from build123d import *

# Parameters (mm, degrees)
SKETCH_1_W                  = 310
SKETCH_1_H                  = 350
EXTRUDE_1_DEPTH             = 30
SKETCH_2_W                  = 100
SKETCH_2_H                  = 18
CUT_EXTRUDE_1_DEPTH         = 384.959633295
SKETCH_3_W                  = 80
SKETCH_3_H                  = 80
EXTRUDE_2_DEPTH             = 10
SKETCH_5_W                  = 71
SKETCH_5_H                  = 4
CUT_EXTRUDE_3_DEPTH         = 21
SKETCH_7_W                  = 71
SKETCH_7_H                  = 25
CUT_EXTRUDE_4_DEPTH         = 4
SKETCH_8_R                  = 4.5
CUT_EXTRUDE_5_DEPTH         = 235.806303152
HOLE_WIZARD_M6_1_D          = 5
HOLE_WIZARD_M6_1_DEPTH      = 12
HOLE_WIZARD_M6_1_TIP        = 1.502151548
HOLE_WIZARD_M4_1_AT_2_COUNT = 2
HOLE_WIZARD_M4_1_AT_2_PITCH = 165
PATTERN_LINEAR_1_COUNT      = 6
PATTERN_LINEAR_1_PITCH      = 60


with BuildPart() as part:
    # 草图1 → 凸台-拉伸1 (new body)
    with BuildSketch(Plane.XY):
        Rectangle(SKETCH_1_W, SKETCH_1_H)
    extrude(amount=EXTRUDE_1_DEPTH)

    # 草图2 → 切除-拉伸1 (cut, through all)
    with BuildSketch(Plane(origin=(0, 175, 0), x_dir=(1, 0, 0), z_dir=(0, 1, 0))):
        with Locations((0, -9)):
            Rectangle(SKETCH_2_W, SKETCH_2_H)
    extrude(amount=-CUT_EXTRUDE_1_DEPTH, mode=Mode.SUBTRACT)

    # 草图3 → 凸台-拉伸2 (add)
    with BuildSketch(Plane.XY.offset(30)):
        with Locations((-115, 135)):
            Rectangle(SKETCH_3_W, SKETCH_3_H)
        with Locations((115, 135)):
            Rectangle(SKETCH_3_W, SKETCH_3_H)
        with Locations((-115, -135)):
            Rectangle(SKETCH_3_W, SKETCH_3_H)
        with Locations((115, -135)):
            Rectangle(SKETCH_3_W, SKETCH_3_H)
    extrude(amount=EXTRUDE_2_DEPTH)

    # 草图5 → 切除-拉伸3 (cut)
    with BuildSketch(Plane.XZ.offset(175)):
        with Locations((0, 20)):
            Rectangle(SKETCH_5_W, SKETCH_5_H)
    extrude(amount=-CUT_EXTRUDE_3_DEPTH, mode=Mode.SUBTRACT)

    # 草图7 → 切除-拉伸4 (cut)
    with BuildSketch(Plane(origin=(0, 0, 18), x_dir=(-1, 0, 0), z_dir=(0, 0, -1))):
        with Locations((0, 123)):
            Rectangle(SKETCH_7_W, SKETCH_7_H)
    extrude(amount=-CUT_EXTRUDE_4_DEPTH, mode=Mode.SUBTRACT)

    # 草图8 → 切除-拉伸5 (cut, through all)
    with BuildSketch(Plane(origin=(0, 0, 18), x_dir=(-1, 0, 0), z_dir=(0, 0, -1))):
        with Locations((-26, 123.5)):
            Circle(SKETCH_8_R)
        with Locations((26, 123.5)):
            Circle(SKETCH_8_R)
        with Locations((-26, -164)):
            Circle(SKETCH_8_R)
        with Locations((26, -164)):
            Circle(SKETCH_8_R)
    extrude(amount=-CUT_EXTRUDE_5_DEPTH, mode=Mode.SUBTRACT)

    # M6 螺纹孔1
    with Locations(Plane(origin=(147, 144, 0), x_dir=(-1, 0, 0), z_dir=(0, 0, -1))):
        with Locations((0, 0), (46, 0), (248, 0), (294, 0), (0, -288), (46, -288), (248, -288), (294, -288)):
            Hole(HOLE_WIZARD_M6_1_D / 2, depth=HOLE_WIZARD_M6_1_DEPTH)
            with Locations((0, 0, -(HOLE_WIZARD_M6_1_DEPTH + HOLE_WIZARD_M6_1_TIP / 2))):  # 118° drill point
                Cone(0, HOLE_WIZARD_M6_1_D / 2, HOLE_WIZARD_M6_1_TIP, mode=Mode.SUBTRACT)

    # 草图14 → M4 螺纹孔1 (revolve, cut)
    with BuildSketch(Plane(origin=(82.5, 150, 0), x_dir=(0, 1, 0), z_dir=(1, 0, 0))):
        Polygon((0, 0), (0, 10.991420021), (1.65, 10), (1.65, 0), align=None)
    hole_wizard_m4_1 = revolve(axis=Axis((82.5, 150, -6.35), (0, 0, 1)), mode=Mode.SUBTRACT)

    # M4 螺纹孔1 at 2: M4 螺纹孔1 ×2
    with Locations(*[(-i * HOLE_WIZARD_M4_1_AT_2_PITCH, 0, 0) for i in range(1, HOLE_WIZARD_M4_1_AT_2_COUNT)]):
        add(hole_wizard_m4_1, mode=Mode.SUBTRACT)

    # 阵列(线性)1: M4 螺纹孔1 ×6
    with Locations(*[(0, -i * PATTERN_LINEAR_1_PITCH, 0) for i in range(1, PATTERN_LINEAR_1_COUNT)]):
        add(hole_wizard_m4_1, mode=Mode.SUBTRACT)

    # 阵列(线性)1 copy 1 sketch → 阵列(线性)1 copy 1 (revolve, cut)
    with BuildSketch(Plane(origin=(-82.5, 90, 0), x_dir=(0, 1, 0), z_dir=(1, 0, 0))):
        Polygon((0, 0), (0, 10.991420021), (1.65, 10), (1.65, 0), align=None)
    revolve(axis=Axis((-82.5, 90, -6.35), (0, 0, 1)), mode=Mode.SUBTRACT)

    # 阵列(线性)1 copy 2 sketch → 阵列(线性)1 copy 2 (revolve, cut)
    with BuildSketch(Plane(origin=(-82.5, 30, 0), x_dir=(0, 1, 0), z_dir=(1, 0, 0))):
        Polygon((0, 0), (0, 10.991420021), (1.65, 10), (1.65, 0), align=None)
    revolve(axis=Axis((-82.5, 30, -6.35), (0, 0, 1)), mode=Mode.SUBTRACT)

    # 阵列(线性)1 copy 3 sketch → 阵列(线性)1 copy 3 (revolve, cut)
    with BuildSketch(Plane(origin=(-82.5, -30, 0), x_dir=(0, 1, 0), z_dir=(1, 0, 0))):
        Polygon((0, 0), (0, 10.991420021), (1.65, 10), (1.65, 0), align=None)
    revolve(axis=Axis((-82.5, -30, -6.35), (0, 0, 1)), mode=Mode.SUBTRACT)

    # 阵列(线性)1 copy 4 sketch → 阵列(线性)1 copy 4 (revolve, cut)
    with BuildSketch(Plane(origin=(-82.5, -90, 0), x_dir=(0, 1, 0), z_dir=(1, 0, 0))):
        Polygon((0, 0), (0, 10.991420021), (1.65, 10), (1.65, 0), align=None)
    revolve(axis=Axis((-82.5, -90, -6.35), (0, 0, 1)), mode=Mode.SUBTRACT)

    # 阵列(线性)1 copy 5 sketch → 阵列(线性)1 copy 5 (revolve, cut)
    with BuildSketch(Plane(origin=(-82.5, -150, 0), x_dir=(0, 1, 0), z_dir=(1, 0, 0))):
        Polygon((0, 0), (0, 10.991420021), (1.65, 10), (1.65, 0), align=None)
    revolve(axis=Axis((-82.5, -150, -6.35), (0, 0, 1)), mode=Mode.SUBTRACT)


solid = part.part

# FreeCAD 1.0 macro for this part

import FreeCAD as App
import Part
import Sketcher
from FreeCAD import Vector
Q = App.Units.Quantity


def add_polygon(sketch, points):
    """Adds a closed chain of lines whose ends are joined by coincident constraints."""
    first, n = sketch.GeometryCount, len(points)
    for a, b in zip(points, points[1:] + points[:1]):
        sketch.addGeometry(Part.LineSegment(App.Vector(*a, 0), App.Vector(*b, 0)), False)
    for i in range(n):
        sketch.addConstraint(Sketcher.Constraint("Coincident", first + i, 2, first + (i + 1) % n, 1))

doc = App.newDocument("Part")
body = doc.addObject("PartDesign::Body", "Body")

# Sketch on XY plane
sketch1 = body.newObject("Sketcher::SketchObject", "Sketch")
sketch1.AttachmentSupport = (doc.getObject("XY_Plane"), [""])
sketch1.MapMode = "FlatFace"
add_polygon(sketch1, [(-155, 175), (-155, -175), (155, -175), (155, 175)])  # lines 0-3
sketch1.addConstraint(Sketcher.Constraint("Vertical", 0))
sketch1.addConstraint(Sketcher.Constraint("Horizontal", 1))
sketch1.addConstraint(Sketcher.Constraint("Vertical", 2))
sketch1.addConstraint(Sketcher.Constraint("Horizontal", 3))
sketch1.addConstraint(Sketcher.Constraint("Symmetric", 0, 2, 2, 2, -1, 1))
sketch1.addConstraint(Sketcher.Constraint("DistanceX", 1, 1, 1, 2, Q("310 mm")))
sketch1.addConstraint(Sketcher.Constraint("DistanceY", 0, 2, 0, 1, Q("350 mm")))
pad1 = body.newObject("PartDesign::Pad", "Pad")
pad1.Profile = sketch1
pad1.Length = 30

# Sketch on XZ plane
sketch2 = body.newObject("Sketcher::SketchObject", "Sketch001")
sketch2.AttachmentSupport = (doc.getObject("XZ_Plane"), [""])
sketch2.MapMode = "FlatFace"
sketch2.AttachmentOffset = App.Placement(Vector(0, 0, -175), App.Rotation())
add_polygon(sketch2, [(-50, 0), (-50, 18), (50, 18), (50, 0)])  # lines 0-3
sketch2.addConstraint(Sketcher.Constraint("Vertical", 0))
sketch2.addConstraint(Sketcher.Constraint("Horizontal", 1))
sketch2.addConstraint(Sketcher.Constraint("Vertical", 2))
sketch2.addConstraint(Sketcher.Constraint("Horizontal", 3))
sketch2.addConstraint(Sketcher.Constraint("Symmetric", 2, 2, 3, 2, -1, 1))
sketch2.addConstraint(Sketcher.Constraint("DistanceX", 1, 1, 1, 2, Q("100 mm")))
sketch2.addConstraint(Sketcher.Constraint("DistanceY", 0, 1, 0, 2, Q("18 mm")))
pocket1 = body.newObject("PartDesign::Pocket", "Pocket")
pocket1.Profile = sketch2
pocket1.Type = "ThroughAll"
pocket1.Reversed = True

# Sketch on XY plane
sketch3 = body.newObject("Sketcher::SketchObject", "Sketch002")
sketch3.AttachmentSupport = (doc.getObject("XY_Plane"), [""])
sketch3.MapMode = "FlatFace"
sketch3.AttachmentOffset = App.Placement(Vector(0, 0, 30), App.Rotation())
add_polygon(sketch3, [(-155, 175), (-155, 95), (-75, 95), (-75, 175)])  # lines 0-3
add_polygon(sketch3, [(75, 175), (75, 95), (155, 95), (155, 175)])  # lines 4-7
add_polygon(sketch3, [(-155, -95), (-155, -175), (-75, -175), (-75, -95)])  # lines 8-11
add_polygon(sketch3, [(75, -95), (75, -175), (155, -175), (155, -95)])  # lines 12-15
sketch3.addConstraint(Sketcher.Constraint("Vertical", 0))
sketch3.addConstraint(Sketcher.Constraint("Horizontal", 1))
sketch3.addConstraint(Sketcher.Constraint("Vertical", 2))
sketch3.addConstraint(Sketcher.Constraint("Horizontal", 3))
sketch3.addConstraint(Sketcher.Constraint("Vertical", 4))
sketch3.addConstraint(Sketcher.Constraint("Horizontal", 5))
sketch3.addConstraint(Sketcher.Constraint("Vertical", 6))
sketch3.addConstraint(Sketcher.Constraint("Horizontal", 7))
sketch3.addConstraint(Sketcher.Constraint("Vertical", 8))
sketch3.addConstraint(Sketcher.Constraint("Horizontal", 9))
sketch3.addConstraint(Sketcher.Constraint("Vertical", 10))
sketch3.addConstraint(Sketcher.Constraint("Horizontal", 11))
sketch3.addConstraint(Sketcher.Constraint("Vertical", 12))
sketch3.addConstraint(Sketcher.Constraint("Horizontal", 13))
sketch3.addConstraint(Sketcher.Constraint("Vertical", 14))
sketch3.addConstraint(Sketcher.Constraint("Horizontal", 15))
sketch3.addConstraint(Sketcher.Constraint("Symmetric", 6, 2, 8, 2, -1, 1))
sketch3.addConstraint(Sketcher.Constraint("Symmetric", 4, 2, 10, 2, -1, 1))
sketch3.addConstraint(Sketcher.Constraint("Symmetric", 2, 2, 12, 2, -1, 1))
sketch3.addConstraint(Sketcher.Constraint("Symmetric", 0, 2, 14, 2, -1, 1))
sketch3.addConstraint(Sketcher.Constraint("Symmetric", 1, 2, 4, 2, -2))
sketch3.addConstraint(Sketcher.Constraint("Symmetric", 3, 2, 6, 2, -2))
sketch3.addConstraint(Sketcher.Constraint("Equal", 15, 0))
sketch3.addConstraint(Sketcher.Constraint("DistanceX", 1, 1, 1, 2, Q("80 mm")))
sketch3.addConstraint(Sketcher.Constraint("DistanceX", 0, 2, -1, 1, Q("155 mm")))
sketch3.addConstraint(Sketcher.Constraint("DistanceY", -1, 1, 0, 2, Q("95 mm")))
pad2 = body.newObject("PartDesign::Pad", "Pad001")
pad2.Profile = sketch3
pad2.Length = 10

# Sketch on XZ plane
sketch4 = body.newObject("Sketcher::SketchObject", "Sketch003")
sketch4.AttachmentSupport = (doc.getObject("XZ_Plane"), [""])
sketch4.MapMode = "FlatFace"
sketch4.AttachmentOffset = App.Placement(Vector(0, 0, 175), App.Rotation())
add_polygon(sketch4, [(-35.5, 22), (-35.5, 18), (35.5, 18), (35.5, 22)])  # lines 0-3
sketch4.addConstraint(Sketcher.Constraint("Vertical", 0))
sketch4.addConstraint(Sketcher.Constraint("Horizontal", 1))
sketch4.addConstraint(Sketcher.Constraint("Vertical", 2))
sketch4.addConstraint(Sketcher.Constraint("Horizontal", 3))
sketch4.addConstraint(Sketcher.Constraint("DistanceX", 1, 1, 1, 2, Q("71 mm")))
sketch4.addConstraint(Sketcher.Constraint("DistanceY", 0, 2, 0, 1, Q("4 mm")))
sketch4.addConstraint(Sketcher.Constraint("DistanceY", -1, 1, 0, 2, Q("18 mm")))
sketch4.addConstraint(Sketcher.Constraint("DistanceX", 0, 2, -1, 1, Q("35.5 mm")))
pocket2 = body.newObject("PartDesign::Pocket", "Pocket001")
pocket2.Profile = sketch4
pocket2.Length = 21

# Sketch on XY plane
sketch5 = body.newObject("Sketcher::SketchObject", "Sketch004")
sketch5.AttachmentSupport = (doc.getObject("XY_Plane"), [""])
sketch5.MapMode = "FlatFace"
sketch5.AttachmentOffset = App.Placement(Vector(0, 0, 18), App.Rotation())
add_polygon(sketch5, [(36, 136), (36, 110), (-36, 110), (-36, 136)])  # lines 0-3
sketch5.addConstraint(Sketcher.Constraint("Vertical", 0))
sketch5.addConstraint(Sketcher.Constraint("Horizontal", 1))
sketch5.addConstraint(Sketcher.Constraint("Vertical", 2))
sketch5.addConstraint(Sketcher.Constraint("Horizontal", 3))
sketch5.addConstraint(Sketcher.Constraint("DistanceX", 1, 2, 1, 1, Q("71 mm")))
sketch5.addConstraint(Sketcher.Constraint("DistanceY", 0, 2, 0, 1, Q("25 mm")))
sketch5.addConstraint(Sketcher.Constraint("DistanceX", -1, 1, 0, 2, Q("35.5 mm")))
sketch5.addConstraint(Sketcher.Constraint("DistanceY", -1, 1, 0, 2, Q("110.5 mm")))
pocket3 = body.newObject("PartDesign::Pocket", "Pocket002")
pocket3.Profile = sketch5
pocket3.Length = 4
pocket3.Reversed = True

# Sketch on XY plane
sketch6 = body.newObject("Sketcher::SketchObject", "Sketch005")
sketch6.AttachmentSupport = (doc.getObject("XY_Plane"), [""])
sketch6.MapMode = "FlatFace"
sketch6.AttachmentOffset = App.Placement(Vector(0, 0, 18), App.Rotation())
sketch6.addGeometry(Part.Circle(Vector(26, 123.5, 0), Vector(0, 0, 1), 4.5), False)
sketch6.addGeometry(Part.Circle(Vector(-26, 123.5, 0), Vector(0, 0, 1), 4.5), False)
sketch6.addGeometry(Part.Circle(Vector(26, -164, 0), Vector(0, 0, 1), 4.5), False)
sketch6.addGeometry(Part.Circle(Vector(-26, -164, 0), Vector(0, 0, 1), 4.5), False)
sketch6.addConstraint(Sketcher.Constraint("Equal", 0, 1))
sketch6.addConstraint(Sketcher.Constraint("Equal", 1, 2))
sketch6.addConstraint(Sketcher.Constraint("Equal", 2, 3))
sketch6.addConstraint(Sketcher.Constraint("Symmetric", 0, 3, 1, 3, -2))
sketch6.addConstraint(Sketcher.Constraint("Symmetric", 2, 3, 3, 3, -2))
sketch6.addConstraint(Sketcher.Constraint("Vertical", 0, 3, 2, 3))
sketch6.addConstraint(Sketcher.Constraint("Diameter", 0, Q("9 mm")))
sketch6.addConstraint(Sketcher.Constraint("DistanceX", -1, 1, 0, 3, Q("26 mm")))
sketch6.addConstraint(Sketcher.Constraint("DistanceY", 2, 3, -1, 1, Q("164 mm")))
sketch6.addConstraint(Sketcher.Constraint("DistanceY", -1, 1, 0, 3, Q("123.5 mm")))
pocket4 = body.newObject("PartDesign::Pocket", "Pocket003")
pocket4.Profile = sketch6
pocket4.Type = "ThroughAll"
pocket4.Reversed = True

# Sketch on XY plane
sketch7 = body.newObject("Sketcher::SketchObject", "Sketch006")
sketch7.AttachmentSupport = (doc.getObject("XY_Plane"), [""])
sketch7.MapMode = "FlatFace"
sketch7.addGeometry(Part.Circle(Vector(147, 144, 0), Vector(0, 0, 1), 2.5), False)
sketch7.addGeometry(Part.Circle(Vector(101, 144, 0), Vector(0, 0, 1), 2.5), False)
sketch7.addGeometry(Part.Circle(Vector(-101, 144, 0), Vector(0, 0, 1), 2.5), False)
sketch7.addGeometry(Part.Circle(Vector(-147, 144, 0), Vector(0, 0, 1), 2.5), False)
sketch7.addGeometry(Part.Circle(Vector(147, -144, 0), Vector(0, 0, 1), 2.5), False)
sketch7.addGeometry(Part.Circle(Vector(101, -144, 0), Vector(0, 0, 1), 2.5), False)
sketch7.addGeometry(Part.Circle(Vector(-101, -144, 0), Vector(0, 0, 1), 2.5), False)
sketch7.addGeometry(Part.Circle(Vector(-147, -144, 0), Vector(0, 0, 1), 2.5), False)
sketch7.addConstraint(Sketcher.Constraint("Equal", 0, 1))
sketch7.addConstraint(Sketcher.Constraint("Equal", 1, 2))
sketch7.addConstraint(Sketcher.Constraint("Equal", 2, 3))
sketch7.addConstraint(Sketcher.Constraint("Equal", 3, 4))
sketch7.addConstraint(Sketcher.Constraint("Equal", 4, 5))
sketch7.addConstraint(Sketcher.Constraint("Equal", 5, 6))
sketch7.addConstraint(Sketcher.Constraint("Equal", 6, 7))
sketch7.addConstraint(Sketcher.Constraint("Symmetric", 3, 3, 4, 3, -1, 1))
sketch7.addConstraint(Sketcher.Constraint("Symmetric", 2, 3, 5, 3, -1, 1))
sketch7.addConstraint(Sketcher.Constraint("Symmetric", 1, 3, 6, 3, -1, 1))
sketch7.addConstraint(Sketcher.Constraint("Symmetric", 0, 3, 7, 3, -1, 1))
sketch7.addConstraint(Sketcher.Constraint("Symmetric", 1, 3, 2, 3, -2))
sketch7.addConstraint(Sketcher.Constraint("Symmetric", 0, 3, 3, 3, -2))
sketch7.addConstraint(Sketcher.Constraint("Horizontal", 0, 3, 1, 3))
sketch7.addConstraint(Sketcher.Constraint("Diameter", 0, Q("5 mm")))
sketch7.addConstraint(Sketcher.Constraint("DistanceX", -1, 1, 0, 3, Q("147 mm")))
sketch7.addConstraint(Sketcher.Constraint("DistanceY", -1, 1, 0, 3, Q("144 mm")))
sketch7.addConstraint(Sketcher.Constraint("DistanceX", -1, 1, 1, 3, Q("101 mm")))
doc.recompute()
hole = body.newObject("PartDesign::Hole", "Hole")
hole.Profile = sketch7
hole.ThreadType = "None"
hole.Diameter = 5
hole.DepthType = "Dimension"
hole.Depth = 12
hole.DrillPoint = "Angled"
hole.DrillPointAngle = 118
hole.Reversed = True

# Sketch on YZ plane
sketch8 = body.newObject("Sketcher::SketchObject", "Sketch007")
sketch8.AttachmentSupport = (doc.getObject("YZ_Plane"), [""])
sketch8.MapMode = "FlatFace"
sketch8.AttachmentOffset = App.Placement(Vector(0, 0, 82.5), App.Rotation())
add_polygon(sketch8, [(150, 11), (150, 0), (151.7, 0), (151.7, 10)])  # lines 0-3
sketch8.addGeometry(Part.LineSegment(Vector(150, 0, 0), Vector(150, 11, 0)), True)  # axis
sketch8.addConstraint(Sketcher.Constraint("Vertical", 0))
sketch8.addConstraint(Sketcher.Constraint("Horizontal", 1))
sketch8.addConstraint(Sketcher.Constraint("Vertical", 2))
sketch8.addConstraint(Sketcher.Constraint("Vertical", 4))
sketch8.addConstraint(Sketcher.Constraint("Coincident", 4, 1, 0, 2))
sketch8.addConstraint(Sketcher.Constraint("PointOnObject", 0, 2, -1))
sketch8.addConstraint(Sketcher.Constraint("Equal", 0, 4))
sketch8.addConstraint(Sketcher.Constraint("DistanceY", 2, 1, 2, 2, Q("10 mm")))
sketch8.addConstraint(Sketcher.Constraint("Angle", 3, Q("149 deg")))
sketch8.addConstraint(Sketcher.Constraint("DistanceX", -1, 1, 0, 2, Q("150 mm")))
sketch8.addConstraint(Sketcher.Constraint("DistanceX", 1, 1, 1, 2, Q("1.65 mm")))
groove = body.newObject("PartDesign::Groove", "Groove")
groove.Profile = sketch8
groove.ReferenceAxis = (sketch8, ["Axis0"])
groove.Angle = 360
doc.recompute()

linearpattern = body.newObject("PartDesign::LinearPattern", "LinearPattern")
linearpattern.Originals = [groove]
linearpattern.Direction = (doc.getObject("X_Axis"), [""])
linearpattern.Mode = "offset"
linearpattern.Offset = 165
linearpattern.Occurrences = 2
linearpattern.Reversed = True
body.Tip = linearpattern
doc.recompute()

linearpattern2 = body.newObject("PartDesign::LinearPattern", "LinearPattern001")
linearpattern2.Originals = [groove]
linearpattern2.Direction = (doc.getObject("Y_Axis"), [""])
linearpattern2.Mode = "offset"
linearpattern2.Offset = 60
linearpattern2.Occurrences = 6
linearpattern2.Reversed = True
body.Tip = linearpattern2

# Sketch on YZ plane
sketch9 = body.newObject("Sketcher::SketchObject", "Sketch008")
sketch9.AttachmentSupport = (doc.getObject("YZ_Plane"), [""])
sketch9.MapMode = "FlatFace"
sketch9.AttachmentOffset = App.Placement(Vector(0, 0, -82.5), App.Rotation())
add_polygon(sketch9, [(90, 11), (90, 0), (91.7, 0), (91.7, 10)])  # lines 0-3
sketch9.addGeometry(Part.LineSegment(Vector(90, 0, 0), Vector(90, 11, 0)), True)  # axis
sketch9.addConstraint(Sketcher.Constraint("Vertical", 0))
sketch9.addConstraint(Sketcher.Constraint("Horizontal", 1))
sketch9.addConstraint(Sketcher.Constraint("Vertical", 2))
sketch9.addConstraint(Sketcher.Constraint("Vertical", 4))
sketch9.addConstraint(Sketcher.Constraint("Coincident", 4, 1, 0, 2))
sketch9.addConstraint(Sketcher.Constraint("PointOnObject", 0, 2, -1))
sketch9.addConstraint(Sketcher.Constraint("Equal", 0, 4))
sketch9.addConstraint(Sketcher.Constraint("DistanceY", 2, 1, 2, 2, Q("10 mm")))
sketch9.addConstraint(Sketcher.Constraint("Angle", 3, Q("149 deg")))
sketch9.addConstraint(Sketcher.Constraint("DistanceX", -1, 1, 0, 2, Q("90 mm")))
sketch9.addConstraint(Sketcher.Constraint("DistanceX", 1, 1, 1, 2, Q("1.65 mm")))
groove2 = body.newObject("PartDesign::Groove", "Groove001")
groove2.Profile = sketch9
groove2.ReferenceAxis = (sketch9, ["Axis0"])
groove2.Angle = 360

# Sketch on YZ plane
sketch10 = body.newObject("Sketcher::SketchObject", "Sketch009")
sketch10.AttachmentSupport = (doc.getObject("YZ_Plane"), [""])
sketch10.MapMode = "FlatFace"
sketch10.AttachmentOffset = App.Placement(Vector(0, 0, -82.5), App.Rotation())
add_polygon(sketch10, [(30, 11), (30, 0), (31.6, 0), (31.6, 10)])  # lines 0-3
sketch10.addGeometry(Part.LineSegment(Vector(30, 0, 0), Vector(30, 11, 0)), True)  # axis
sketch10.addConstraint(Sketcher.Constraint("Vertical", 0))
sketch10.addConstraint(Sketcher.Constraint("Horizontal", 1))
sketch10.addConstraint(Sketcher.Constraint("Vertical", 2))
sketch10.addConstraint(Sketcher.Constraint("Vertical", 4))
sketch10.addConstraint(Sketcher.Constraint("Coincident", 4, 1, 0, 2))
sketch10.addConstraint(Sketcher.Constraint("PointOnObject", 0, 2, -1))
sketch10.addConstraint(Sketcher.Constraint("Equal", 0, 4))
sketch10.addConstraint(Sketcher.Constraint("DistanceY", 2, 1, 2, 2, Q("10 mm")))
sketch10.addConstraint(Sketcher.Constraint("Angle", 3, Q("149 deg")))
sketch10.addConstraint(Sketcher.Constraint("DistanceX", -1, 1, 0, 2, Q("30 mm")))
sketch10.addConstraint(Sketcher.Constraint("DistanceX", 1, 1, 1, 2, Q("1.65 mm")))
groove3 = body.newObject("PartDesign::Groove", "Groove002")
groove3.Profile = sketch10
groove3.ReferenceAxis = (sketch10, ["Axis0"])
groove3.Angle = 360

# Sketch on YZ plane
sketch11 = body.newObject("Sketcher::SketchObject", "Sketch010")
sketch11.AttachmentSupport = (doc.getObject("YZ_Plane"), [""])
sketch11.MapMode = "FlatFace"
sketch11.AttachmentOffset = App.Placement(Vector(0, 0, -82.5), App.Rotation())
add_polygon(sketch11, [(-30, 11), (-30, 0), (-28.4, 0), (-28.4, 10)])  # lines 0-3
sketch11.addGeometry(Part.LineSegment(Vector(-30, 0, 0), Vector(-30, 11, 0)), True)  # axis
sketch11.addConstraint(Sketcher.Constraint("Vertical", 0))
sketch11.addConstraint(Sketcher.Constraint("Horizontal", 1))
sketch11.addConstraint(Sketcher.Constraint("Vertical", 2))
sketch11.addConstraint(Sketcher.Constraint("Vertical", 4))
sketch11.addConstraint(Sketcher.Constraint("Coincident", 4, 1, 0, 2))
sketch11.addConstraint(Sketcher.Constraint("PointOnObject", 0, 2, -1))
sketch11.addConstraint(Sketcher.Constraint("Equal", 0, 4))
sketch11.addConstraint(Sketcher.Constraint("DistanceY", 2, 1, 2, 2, Q("10 mm")))
sketch11.addConstraint(Sketcher.Constraint("Angle", 3, Q("149 deg")))
sketch11.addConstraint(Sketcher.Constraint("DistanceX", 0, 2, -1, 1, Q("30 mm")))
sketch11.addConstraint(Sketcher.Constraint("DistanceX", 1, 1, 1, 2, Q("1.65 mm")))
groove4 = body.newObject("PartDesign::Groove", "Groove003")
groove4.Profile = sketch11
groove4.ReferenceAxis = (sketch11, ["Axis0"])
groove4.Angle = 360

# Sketch on YZ plane
sketch12 = body.newObject("Sketcher::SketchObject", "Sketch011")
sketch12.AttachmentSupport = (doc.getObject("YZ_Plane"), [""])
sketch12.MapMode = "FlatFace"
sketch12.AttachmentOffset = App.Placement(Vector(0, 0, -82.5), App.Rotation())
add_polygon(sketch12, [(-90, 11), (-90, 0), (-88.3, 0), (-88.3, 10)])  # lines 0-3
sketch12.addGeometry(Part.LineSegment(Vector(-90, 0, 0), Vector(-90, 11, 0)), True)  # axis
sketch12.addConstraint(Sketcher.Constraint("Vertical", 0))
sketch12.addConstraint(Sketcher.Constraint("Horizontal", 1))
sketch12.addConstraint(Sketcher.Constraint("Vertical", 2))
sketch12.addConstraint(Sketcher.Constraint("Vertical", 4))
sketch12.addConstraint(Sketcher.Constraint("Coincident", 4, 1, 0, 2))
sketch12.addConstraint(Sketcher.Constraint("PointOnObject", 0, 2, -1))
sketch12.addConstraint(Sketcher.Constraint("Equal", 0, 4))
sketch12.addConstraint(Sketcher.Constraint("DistanceY", 2, 1, 2, 2, Q("10 mm")))
sketch12.addConstraint(Sketcher.Constraint("Angle", 3, Q("149 deg")))
sketch12.addConstraint(Sketcher.Constraint("DistanceX", 0, 2, -1, 1, Q("90 mm")))
sketch12.addConstraint(Sketcher.Constraint("DistanceX", 1, 1, 1, 2, Q("1.65 mm")))
groove5 = body.newObject("PartDesign::Groove", "Groove004")
groove5.Profile = sketch12
groove5.ReferenceAxis = (sketch12, ["Axis0"])
groove5.Angle = 360

# Sketch on YZ plane
sketch13 = body.newObject("Sketcher::SketchObject", "Sketch012")
sketch13.AttachmentSupport = (doc.getObject("YZ_Plane"), [""])
sketch13.MapMode = "FlatFace"
sketch13.AttachmentOffset = App.Placement(Vector(0, 0, -82.5), App.Rotation())
add_polygon(sketch13, [(-150, 11), (-150, 0), (-148.3, 0), (-148.3, 10)])  # lines 0-3
sketch13.addGeometry(Part.LineSegment(Vector(-150, 0, 0), Vector(-150, 11, 0)), True)  # axis
sketch13.addConstraint(Sketcher.Constraint("Vertical", 0))
sketch13.addConstraint(Sketcher.Constraint("Horizontal", 1))
sketch13.addConstraint(Sketcher.Constraint("Vertical", 2))
sketch13.addConstraint(Sketcher.Constraint("Vertical", 4))
sketch13.addConstraint(Sketcher.Constraint("Coincident", 4, 1, 0, 2))
sketch13.addConstraint(Sketcher.Constraint("PointOnObject", 0, 2, -1))
sketch13.addConstraint(Sketcher.Constraint("Equal", 0, 4))
sketch13.addConstraint(Sketcher.Constraint("DistanceY", 2, 1, 2, 2, Q("10 mm")))
sketch13.addConstraint(Sketcher.Constraint("Angle", 3, Q("149 deg")))
sketch13.addConstraint(Sketcher.Constraint("DistanceX", 0, 2, -1, 1, Q("150 mm")))
sketch13.addConstraint(Sketcher.Constraint("DistanceX", 1, 1, 1, 2, Q("1.65 mm")))
groove6 = body.newObject("PartDesign::Groove", "Groove005")
groove6.Profile = sketch13
groove6.ReferenceAxis = (sketch13, ["Axis0"])
groove6.Angle = 360

doc.recompute()
